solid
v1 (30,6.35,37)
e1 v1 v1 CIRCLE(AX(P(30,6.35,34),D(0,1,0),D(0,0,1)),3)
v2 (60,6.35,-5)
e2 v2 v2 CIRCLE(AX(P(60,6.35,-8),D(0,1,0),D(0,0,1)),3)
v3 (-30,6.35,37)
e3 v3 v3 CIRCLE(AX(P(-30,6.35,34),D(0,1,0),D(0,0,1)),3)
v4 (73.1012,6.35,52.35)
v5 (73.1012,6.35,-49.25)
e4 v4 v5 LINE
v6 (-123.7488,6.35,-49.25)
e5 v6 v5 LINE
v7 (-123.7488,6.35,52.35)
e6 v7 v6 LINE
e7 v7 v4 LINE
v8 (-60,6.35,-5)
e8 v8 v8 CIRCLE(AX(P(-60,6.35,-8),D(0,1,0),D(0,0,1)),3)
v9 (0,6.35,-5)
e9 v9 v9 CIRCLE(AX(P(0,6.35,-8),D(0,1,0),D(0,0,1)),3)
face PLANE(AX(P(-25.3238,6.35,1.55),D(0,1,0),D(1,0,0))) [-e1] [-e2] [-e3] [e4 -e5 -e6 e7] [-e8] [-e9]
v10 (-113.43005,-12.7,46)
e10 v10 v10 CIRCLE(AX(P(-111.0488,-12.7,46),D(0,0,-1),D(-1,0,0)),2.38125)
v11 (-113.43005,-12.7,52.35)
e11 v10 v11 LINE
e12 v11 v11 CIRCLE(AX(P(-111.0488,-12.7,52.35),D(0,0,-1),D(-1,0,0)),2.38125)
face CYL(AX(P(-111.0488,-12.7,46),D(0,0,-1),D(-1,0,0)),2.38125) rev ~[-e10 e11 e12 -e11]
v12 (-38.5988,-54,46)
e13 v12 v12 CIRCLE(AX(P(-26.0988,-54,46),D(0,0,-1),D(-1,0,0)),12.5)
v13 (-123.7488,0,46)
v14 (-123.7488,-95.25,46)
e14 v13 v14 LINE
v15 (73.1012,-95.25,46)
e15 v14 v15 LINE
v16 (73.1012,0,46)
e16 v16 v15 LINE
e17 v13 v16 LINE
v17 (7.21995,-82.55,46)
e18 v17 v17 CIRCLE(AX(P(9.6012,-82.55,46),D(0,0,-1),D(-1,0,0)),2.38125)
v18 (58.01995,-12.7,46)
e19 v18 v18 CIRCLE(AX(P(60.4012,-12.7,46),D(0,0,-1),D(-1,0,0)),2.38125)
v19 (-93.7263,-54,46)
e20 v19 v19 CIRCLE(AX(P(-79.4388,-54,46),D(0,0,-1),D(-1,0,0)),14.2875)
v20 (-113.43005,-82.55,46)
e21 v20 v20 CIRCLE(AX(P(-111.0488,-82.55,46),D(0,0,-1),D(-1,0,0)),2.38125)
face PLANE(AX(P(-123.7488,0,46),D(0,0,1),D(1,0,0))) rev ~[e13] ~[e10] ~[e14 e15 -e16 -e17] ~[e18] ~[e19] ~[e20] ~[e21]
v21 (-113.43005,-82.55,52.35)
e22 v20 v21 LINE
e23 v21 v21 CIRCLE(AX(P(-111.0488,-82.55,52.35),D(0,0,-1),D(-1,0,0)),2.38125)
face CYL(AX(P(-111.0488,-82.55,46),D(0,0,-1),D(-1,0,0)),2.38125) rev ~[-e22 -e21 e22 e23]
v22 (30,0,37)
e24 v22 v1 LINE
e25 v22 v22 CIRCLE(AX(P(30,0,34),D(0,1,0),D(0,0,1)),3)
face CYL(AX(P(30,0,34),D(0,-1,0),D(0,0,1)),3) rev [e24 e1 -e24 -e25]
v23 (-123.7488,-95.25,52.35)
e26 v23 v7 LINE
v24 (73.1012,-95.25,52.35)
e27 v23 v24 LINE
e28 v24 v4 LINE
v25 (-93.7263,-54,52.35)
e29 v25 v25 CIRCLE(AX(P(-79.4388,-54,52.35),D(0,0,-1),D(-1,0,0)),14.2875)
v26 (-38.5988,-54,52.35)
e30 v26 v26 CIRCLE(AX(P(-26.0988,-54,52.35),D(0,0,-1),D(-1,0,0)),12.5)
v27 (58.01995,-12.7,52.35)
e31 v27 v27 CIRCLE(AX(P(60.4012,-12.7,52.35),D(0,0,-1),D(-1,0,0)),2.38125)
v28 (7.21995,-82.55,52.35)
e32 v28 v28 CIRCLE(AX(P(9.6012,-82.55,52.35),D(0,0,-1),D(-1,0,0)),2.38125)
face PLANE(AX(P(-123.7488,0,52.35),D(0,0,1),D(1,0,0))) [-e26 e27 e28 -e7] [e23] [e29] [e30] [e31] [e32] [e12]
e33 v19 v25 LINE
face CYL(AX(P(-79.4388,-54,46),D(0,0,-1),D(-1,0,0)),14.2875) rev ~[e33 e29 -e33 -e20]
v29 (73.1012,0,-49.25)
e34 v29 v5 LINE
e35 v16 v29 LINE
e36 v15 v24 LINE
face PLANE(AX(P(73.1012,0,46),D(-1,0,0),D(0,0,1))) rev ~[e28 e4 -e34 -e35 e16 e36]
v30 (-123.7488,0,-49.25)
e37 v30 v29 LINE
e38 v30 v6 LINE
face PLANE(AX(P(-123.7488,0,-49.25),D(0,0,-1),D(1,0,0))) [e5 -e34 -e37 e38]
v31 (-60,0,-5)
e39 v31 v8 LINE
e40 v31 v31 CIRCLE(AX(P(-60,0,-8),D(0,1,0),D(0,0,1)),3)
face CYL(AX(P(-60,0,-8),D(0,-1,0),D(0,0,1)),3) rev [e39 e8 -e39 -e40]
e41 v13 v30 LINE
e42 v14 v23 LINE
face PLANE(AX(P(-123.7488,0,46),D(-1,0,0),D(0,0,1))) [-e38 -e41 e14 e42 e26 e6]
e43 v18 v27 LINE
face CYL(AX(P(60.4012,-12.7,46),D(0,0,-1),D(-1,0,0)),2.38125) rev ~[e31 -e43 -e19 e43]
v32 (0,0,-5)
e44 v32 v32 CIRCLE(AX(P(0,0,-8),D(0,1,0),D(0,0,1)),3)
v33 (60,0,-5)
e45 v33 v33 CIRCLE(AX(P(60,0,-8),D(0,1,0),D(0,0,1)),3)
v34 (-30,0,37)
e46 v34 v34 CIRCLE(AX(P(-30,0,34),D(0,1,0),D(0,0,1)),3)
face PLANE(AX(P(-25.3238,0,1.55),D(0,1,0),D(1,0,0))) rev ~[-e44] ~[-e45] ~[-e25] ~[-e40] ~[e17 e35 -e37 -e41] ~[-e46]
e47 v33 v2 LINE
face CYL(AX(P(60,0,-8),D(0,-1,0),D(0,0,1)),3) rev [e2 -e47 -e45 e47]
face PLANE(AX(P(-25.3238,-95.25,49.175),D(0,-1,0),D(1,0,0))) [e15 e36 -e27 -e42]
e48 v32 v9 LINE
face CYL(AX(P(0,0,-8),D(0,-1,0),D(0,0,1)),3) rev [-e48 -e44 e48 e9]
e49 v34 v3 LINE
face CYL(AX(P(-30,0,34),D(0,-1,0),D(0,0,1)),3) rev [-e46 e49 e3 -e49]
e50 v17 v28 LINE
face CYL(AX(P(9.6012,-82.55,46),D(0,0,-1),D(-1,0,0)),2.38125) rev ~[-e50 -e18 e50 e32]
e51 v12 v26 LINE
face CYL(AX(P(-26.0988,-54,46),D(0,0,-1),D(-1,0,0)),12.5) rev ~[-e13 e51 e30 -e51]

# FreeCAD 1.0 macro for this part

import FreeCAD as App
import Part
import Sketcher

V = App.Vector
Q = App.Units.Quantity


def add_polygon(sketch, points):
    """Adds a closed chain of lines whose ends are joined by coincident constraints."""
    first, n = sketch.GeometryCount, len(points)
    for a, b in zip(points, points[1:] + points[:1]):
        sketch.addGeometry(Part.LineSegment(App.Vector(*a, 0), App.Vector(*b, 0)), False)
    for i in range(n):
        sketch.addConstraint(Sketcher.Constraint("Coincident", first + i, 2, first + (i + 1) % n, 1))

doc = App.newDocument("Part")
body = doc.addObject("PartDesign::Body", "Body")

sketch1 = doc.addObject("Sketcher::SketchObject", "Sketch")
body.addObject(sketch1)
sketch1.AttachmentSupport = (doc.XZ_Plane, [""])
sketch1.MapMode = "FlatFace"
add_polygon(sketch1, [(-123.7, -49.3), (-123.7, 52.3), (73.1, 52.3), (73.1, -49.3)])
sketch1.addGeometry(Part.Circle(V(-30, 34, 0), V(0, 0, 1), 3), False)
sketch1.addGeometry(Part.Circle(V(30, 34, 0), V(0, 0, 1), 3), False)
sketch1.addGeometry(Part.Circle(V(-60, -8, 0), V(0, 0, 1), 3), False)
sketch1.addGeometry(Part.Circle(V(0, -8, 0), V(0, 0, 1), 3), False)
sketch1.addGeometry(Part.Circle(V(60, -8, 0), V(0, 0, 1), 3), False)
sketch1.addConstraint([
    Sketcher.Constraint("Vertical", 0),
    Sketcher.Constraint("Horizontal", 1),
    Sketcher.Constraint("Vertical", 2),
    Sketcher.Constraint("Horizontal", 3),
    Sketcher.Constraint("Equal", 4, 5),
    Sketcher.Constraint("Equal", 5, 6),
    Sketcher.Constraint("Equal", 6, 7),
    Sketcher.Constraint("Equal", 7, 8),
    Sketcher.Constraint("Symmetric", 4, 3, 5, 3, -2),
    Sketcher.Constraint("Symmetric", 6, 3, 8, 3, -2),
    Sketcher.Constraint("PointOnObject", 7, 3, -2),
    Sketcher.Constraint("Horizontal", 6, 3, 7, 3),
    Sketcher.Constraint("DistanceY", 0, 1, 0, 2, Q("4 in")),
    Sketcher.Constraint("DistanceX", 1, 1, 1, 2, Q("7.75 in")),
    Sketcher.Constraint("Diameter", 4, Q("6 mm")),
    Sketcher.Constraint("DistanceX", 0, 2, -1, 1, Q("4.872 in")),
    Sketcher.Constraint("DistanceX", 4, 3, -1, 1, Q("30 mm")),
    Sketcher.Constraint("DistanceY", -1, 1, 4, 3, Q("34 mm")),
    Sketcher.Constraint("DistanceX", 6, 3, -1, 1, Q("60 mm")),
    Sketcher.Constraint("DistanceY", 6, 3, -1, 1, Q("8 mm")),
    Sketcher.Constraint("DistanceY", -1, 1, 0, 2, Q("52.35 mm")),
])
pad1 = doc.addObject("PartDesign::Pad", "Pad")
body.addObject(pad1)
pad1.Profile = sketch1
pad1.Length = Q("0.25 in")
pad1.Reversed = True

sketch2 = doc.addObject("Sketcher::SketchObject", "Sketch001")
body.addObject(sketch2)
sketch2.AttachmentSupport = (doc.XZ_Plane, [""])
sketch2.MapMode = "FlatFace"
add_polygon(sketch2, [(-124, 52), (-124, 46), (73, 46), (73, 52)])
sketch2.addConstraint([
    Sketcher.Constraint("Vertical", 0),
    Sketcher.Constraint("Horizontal", 1),
    Sketcher.Constraint("Vertical", 2),
    Sketcher.Constraint("Horizontal", 3),
    Sketcher.Constraint("DistanceX", 1, 1, 1, 2, Q("7.75 in")),
    Sketcher.Constraint("DistanceY", 0, 2, 0, 1, Q("0.25 in")),
    Sketcher.Constraint("DistanceX", 0, 2, -1, 1, Q("4.872 in")),
    Sketcher.Constraint("DistanceY", -1, 1, 0, 2, Q("46 mm")),
])
pad2 = doc.addObject("PartDesign::Pad", "Pad001")
body.addObject(pad2)
pad2.Profile = sketch2
pad2.Length = Q("3.75 in")

sketch3 = doc.addObject("Sketcher::SketchObject", "Sketch002")
body.addObject(sketch3)
sketch3.AttachmentSupport = (doc.XY_Plane, [""])
sketch3.MapMode = "FlatFace"
sketch3.AttachmentOffset = App.Placement(V(0, 0, 46), App.Rotation())
sketch3.addGeometry([
    Part.Circle(V(-26.1, -54, 0), V(0, 0, 1), 12.5),
    Part.Circle(V(60.4, -12.7, 0), V(0, 0, 1), 2.4),
    Part.Circle(V(-111, -12.7, 0), V(0, 0, 1), 2.4),
    Part.Circle(V(-111, -82.5, 0), V(0, 0, 1), 2.4),
    Part.Circle(V(9.6, -82.5, 0), V(0, 0, 1), 2.4),
    Part.Circle(V(-79.4, -54, 0), V(0, 0, 1), 14.3),
], False)
sketch3.addConstraint([
    Sketcher.Constraint("Equal", 1, 2),
    Sketcher.Constraint("Equal", 2, 3),
    Sketcher.Constraint("Equal", 3, 4),
    Sketcher.Constraint("Horizontal", 1, 3, 2, 3),
    Sketcher.Constraint("Horizontal", 3, 3, 4, 3),
    Sketcher.Constraint("Horizontal", 0, 3, 5, 3),
    Sketcher.Constraint("Vertical", 2, 3, 3, 3),
    Sketcher.Constraint("Diameter", 1, Q("0.1875 in")),
    Sketcher.Constraint("Diameter", 5, Q("1.125 in")),
    Sketcher.Constraint("DistanceX", 4, 3, 1, 3, Q("2 in")),
    Sketcher.Constraint("DistanceY", 1, 3, -1, 1, Q("0.5 in")),
    Sketcher.Constraint("DistanceX", 5, 3, 0, 3, Q("2.1 in")),
    Sketcher.Constraint("Diameter", 0, Q("25 mm")),
    Sketcher.Constraint("DistanceY", 3, 3, -1, 1, Q("3.25 in")),
    Sketcher.Constraint("DistanceX", 2, 3, 1, 3, Q("6.75 in")),
    Sketcher.Constraint("DistanceX", -1, 1, 1, 3, Q("2.378 in")),
    Sketcher.Constraint("DistanceX", 0, 3, -1, 1, Q("26.0988 mm")),
    Sketcher.Constraint("DistanceY", 0, 3, -1, 1, Q("54 mm")),
])
pocket1 = doc.addObject("PartDesign::Pocket", "Pocket")
body.addObject(pocket1)
pocket1.Profile = sketch3
pocket1.Type = "ThroughAll"
pocket1.Reversed = True

doc.recompute()
